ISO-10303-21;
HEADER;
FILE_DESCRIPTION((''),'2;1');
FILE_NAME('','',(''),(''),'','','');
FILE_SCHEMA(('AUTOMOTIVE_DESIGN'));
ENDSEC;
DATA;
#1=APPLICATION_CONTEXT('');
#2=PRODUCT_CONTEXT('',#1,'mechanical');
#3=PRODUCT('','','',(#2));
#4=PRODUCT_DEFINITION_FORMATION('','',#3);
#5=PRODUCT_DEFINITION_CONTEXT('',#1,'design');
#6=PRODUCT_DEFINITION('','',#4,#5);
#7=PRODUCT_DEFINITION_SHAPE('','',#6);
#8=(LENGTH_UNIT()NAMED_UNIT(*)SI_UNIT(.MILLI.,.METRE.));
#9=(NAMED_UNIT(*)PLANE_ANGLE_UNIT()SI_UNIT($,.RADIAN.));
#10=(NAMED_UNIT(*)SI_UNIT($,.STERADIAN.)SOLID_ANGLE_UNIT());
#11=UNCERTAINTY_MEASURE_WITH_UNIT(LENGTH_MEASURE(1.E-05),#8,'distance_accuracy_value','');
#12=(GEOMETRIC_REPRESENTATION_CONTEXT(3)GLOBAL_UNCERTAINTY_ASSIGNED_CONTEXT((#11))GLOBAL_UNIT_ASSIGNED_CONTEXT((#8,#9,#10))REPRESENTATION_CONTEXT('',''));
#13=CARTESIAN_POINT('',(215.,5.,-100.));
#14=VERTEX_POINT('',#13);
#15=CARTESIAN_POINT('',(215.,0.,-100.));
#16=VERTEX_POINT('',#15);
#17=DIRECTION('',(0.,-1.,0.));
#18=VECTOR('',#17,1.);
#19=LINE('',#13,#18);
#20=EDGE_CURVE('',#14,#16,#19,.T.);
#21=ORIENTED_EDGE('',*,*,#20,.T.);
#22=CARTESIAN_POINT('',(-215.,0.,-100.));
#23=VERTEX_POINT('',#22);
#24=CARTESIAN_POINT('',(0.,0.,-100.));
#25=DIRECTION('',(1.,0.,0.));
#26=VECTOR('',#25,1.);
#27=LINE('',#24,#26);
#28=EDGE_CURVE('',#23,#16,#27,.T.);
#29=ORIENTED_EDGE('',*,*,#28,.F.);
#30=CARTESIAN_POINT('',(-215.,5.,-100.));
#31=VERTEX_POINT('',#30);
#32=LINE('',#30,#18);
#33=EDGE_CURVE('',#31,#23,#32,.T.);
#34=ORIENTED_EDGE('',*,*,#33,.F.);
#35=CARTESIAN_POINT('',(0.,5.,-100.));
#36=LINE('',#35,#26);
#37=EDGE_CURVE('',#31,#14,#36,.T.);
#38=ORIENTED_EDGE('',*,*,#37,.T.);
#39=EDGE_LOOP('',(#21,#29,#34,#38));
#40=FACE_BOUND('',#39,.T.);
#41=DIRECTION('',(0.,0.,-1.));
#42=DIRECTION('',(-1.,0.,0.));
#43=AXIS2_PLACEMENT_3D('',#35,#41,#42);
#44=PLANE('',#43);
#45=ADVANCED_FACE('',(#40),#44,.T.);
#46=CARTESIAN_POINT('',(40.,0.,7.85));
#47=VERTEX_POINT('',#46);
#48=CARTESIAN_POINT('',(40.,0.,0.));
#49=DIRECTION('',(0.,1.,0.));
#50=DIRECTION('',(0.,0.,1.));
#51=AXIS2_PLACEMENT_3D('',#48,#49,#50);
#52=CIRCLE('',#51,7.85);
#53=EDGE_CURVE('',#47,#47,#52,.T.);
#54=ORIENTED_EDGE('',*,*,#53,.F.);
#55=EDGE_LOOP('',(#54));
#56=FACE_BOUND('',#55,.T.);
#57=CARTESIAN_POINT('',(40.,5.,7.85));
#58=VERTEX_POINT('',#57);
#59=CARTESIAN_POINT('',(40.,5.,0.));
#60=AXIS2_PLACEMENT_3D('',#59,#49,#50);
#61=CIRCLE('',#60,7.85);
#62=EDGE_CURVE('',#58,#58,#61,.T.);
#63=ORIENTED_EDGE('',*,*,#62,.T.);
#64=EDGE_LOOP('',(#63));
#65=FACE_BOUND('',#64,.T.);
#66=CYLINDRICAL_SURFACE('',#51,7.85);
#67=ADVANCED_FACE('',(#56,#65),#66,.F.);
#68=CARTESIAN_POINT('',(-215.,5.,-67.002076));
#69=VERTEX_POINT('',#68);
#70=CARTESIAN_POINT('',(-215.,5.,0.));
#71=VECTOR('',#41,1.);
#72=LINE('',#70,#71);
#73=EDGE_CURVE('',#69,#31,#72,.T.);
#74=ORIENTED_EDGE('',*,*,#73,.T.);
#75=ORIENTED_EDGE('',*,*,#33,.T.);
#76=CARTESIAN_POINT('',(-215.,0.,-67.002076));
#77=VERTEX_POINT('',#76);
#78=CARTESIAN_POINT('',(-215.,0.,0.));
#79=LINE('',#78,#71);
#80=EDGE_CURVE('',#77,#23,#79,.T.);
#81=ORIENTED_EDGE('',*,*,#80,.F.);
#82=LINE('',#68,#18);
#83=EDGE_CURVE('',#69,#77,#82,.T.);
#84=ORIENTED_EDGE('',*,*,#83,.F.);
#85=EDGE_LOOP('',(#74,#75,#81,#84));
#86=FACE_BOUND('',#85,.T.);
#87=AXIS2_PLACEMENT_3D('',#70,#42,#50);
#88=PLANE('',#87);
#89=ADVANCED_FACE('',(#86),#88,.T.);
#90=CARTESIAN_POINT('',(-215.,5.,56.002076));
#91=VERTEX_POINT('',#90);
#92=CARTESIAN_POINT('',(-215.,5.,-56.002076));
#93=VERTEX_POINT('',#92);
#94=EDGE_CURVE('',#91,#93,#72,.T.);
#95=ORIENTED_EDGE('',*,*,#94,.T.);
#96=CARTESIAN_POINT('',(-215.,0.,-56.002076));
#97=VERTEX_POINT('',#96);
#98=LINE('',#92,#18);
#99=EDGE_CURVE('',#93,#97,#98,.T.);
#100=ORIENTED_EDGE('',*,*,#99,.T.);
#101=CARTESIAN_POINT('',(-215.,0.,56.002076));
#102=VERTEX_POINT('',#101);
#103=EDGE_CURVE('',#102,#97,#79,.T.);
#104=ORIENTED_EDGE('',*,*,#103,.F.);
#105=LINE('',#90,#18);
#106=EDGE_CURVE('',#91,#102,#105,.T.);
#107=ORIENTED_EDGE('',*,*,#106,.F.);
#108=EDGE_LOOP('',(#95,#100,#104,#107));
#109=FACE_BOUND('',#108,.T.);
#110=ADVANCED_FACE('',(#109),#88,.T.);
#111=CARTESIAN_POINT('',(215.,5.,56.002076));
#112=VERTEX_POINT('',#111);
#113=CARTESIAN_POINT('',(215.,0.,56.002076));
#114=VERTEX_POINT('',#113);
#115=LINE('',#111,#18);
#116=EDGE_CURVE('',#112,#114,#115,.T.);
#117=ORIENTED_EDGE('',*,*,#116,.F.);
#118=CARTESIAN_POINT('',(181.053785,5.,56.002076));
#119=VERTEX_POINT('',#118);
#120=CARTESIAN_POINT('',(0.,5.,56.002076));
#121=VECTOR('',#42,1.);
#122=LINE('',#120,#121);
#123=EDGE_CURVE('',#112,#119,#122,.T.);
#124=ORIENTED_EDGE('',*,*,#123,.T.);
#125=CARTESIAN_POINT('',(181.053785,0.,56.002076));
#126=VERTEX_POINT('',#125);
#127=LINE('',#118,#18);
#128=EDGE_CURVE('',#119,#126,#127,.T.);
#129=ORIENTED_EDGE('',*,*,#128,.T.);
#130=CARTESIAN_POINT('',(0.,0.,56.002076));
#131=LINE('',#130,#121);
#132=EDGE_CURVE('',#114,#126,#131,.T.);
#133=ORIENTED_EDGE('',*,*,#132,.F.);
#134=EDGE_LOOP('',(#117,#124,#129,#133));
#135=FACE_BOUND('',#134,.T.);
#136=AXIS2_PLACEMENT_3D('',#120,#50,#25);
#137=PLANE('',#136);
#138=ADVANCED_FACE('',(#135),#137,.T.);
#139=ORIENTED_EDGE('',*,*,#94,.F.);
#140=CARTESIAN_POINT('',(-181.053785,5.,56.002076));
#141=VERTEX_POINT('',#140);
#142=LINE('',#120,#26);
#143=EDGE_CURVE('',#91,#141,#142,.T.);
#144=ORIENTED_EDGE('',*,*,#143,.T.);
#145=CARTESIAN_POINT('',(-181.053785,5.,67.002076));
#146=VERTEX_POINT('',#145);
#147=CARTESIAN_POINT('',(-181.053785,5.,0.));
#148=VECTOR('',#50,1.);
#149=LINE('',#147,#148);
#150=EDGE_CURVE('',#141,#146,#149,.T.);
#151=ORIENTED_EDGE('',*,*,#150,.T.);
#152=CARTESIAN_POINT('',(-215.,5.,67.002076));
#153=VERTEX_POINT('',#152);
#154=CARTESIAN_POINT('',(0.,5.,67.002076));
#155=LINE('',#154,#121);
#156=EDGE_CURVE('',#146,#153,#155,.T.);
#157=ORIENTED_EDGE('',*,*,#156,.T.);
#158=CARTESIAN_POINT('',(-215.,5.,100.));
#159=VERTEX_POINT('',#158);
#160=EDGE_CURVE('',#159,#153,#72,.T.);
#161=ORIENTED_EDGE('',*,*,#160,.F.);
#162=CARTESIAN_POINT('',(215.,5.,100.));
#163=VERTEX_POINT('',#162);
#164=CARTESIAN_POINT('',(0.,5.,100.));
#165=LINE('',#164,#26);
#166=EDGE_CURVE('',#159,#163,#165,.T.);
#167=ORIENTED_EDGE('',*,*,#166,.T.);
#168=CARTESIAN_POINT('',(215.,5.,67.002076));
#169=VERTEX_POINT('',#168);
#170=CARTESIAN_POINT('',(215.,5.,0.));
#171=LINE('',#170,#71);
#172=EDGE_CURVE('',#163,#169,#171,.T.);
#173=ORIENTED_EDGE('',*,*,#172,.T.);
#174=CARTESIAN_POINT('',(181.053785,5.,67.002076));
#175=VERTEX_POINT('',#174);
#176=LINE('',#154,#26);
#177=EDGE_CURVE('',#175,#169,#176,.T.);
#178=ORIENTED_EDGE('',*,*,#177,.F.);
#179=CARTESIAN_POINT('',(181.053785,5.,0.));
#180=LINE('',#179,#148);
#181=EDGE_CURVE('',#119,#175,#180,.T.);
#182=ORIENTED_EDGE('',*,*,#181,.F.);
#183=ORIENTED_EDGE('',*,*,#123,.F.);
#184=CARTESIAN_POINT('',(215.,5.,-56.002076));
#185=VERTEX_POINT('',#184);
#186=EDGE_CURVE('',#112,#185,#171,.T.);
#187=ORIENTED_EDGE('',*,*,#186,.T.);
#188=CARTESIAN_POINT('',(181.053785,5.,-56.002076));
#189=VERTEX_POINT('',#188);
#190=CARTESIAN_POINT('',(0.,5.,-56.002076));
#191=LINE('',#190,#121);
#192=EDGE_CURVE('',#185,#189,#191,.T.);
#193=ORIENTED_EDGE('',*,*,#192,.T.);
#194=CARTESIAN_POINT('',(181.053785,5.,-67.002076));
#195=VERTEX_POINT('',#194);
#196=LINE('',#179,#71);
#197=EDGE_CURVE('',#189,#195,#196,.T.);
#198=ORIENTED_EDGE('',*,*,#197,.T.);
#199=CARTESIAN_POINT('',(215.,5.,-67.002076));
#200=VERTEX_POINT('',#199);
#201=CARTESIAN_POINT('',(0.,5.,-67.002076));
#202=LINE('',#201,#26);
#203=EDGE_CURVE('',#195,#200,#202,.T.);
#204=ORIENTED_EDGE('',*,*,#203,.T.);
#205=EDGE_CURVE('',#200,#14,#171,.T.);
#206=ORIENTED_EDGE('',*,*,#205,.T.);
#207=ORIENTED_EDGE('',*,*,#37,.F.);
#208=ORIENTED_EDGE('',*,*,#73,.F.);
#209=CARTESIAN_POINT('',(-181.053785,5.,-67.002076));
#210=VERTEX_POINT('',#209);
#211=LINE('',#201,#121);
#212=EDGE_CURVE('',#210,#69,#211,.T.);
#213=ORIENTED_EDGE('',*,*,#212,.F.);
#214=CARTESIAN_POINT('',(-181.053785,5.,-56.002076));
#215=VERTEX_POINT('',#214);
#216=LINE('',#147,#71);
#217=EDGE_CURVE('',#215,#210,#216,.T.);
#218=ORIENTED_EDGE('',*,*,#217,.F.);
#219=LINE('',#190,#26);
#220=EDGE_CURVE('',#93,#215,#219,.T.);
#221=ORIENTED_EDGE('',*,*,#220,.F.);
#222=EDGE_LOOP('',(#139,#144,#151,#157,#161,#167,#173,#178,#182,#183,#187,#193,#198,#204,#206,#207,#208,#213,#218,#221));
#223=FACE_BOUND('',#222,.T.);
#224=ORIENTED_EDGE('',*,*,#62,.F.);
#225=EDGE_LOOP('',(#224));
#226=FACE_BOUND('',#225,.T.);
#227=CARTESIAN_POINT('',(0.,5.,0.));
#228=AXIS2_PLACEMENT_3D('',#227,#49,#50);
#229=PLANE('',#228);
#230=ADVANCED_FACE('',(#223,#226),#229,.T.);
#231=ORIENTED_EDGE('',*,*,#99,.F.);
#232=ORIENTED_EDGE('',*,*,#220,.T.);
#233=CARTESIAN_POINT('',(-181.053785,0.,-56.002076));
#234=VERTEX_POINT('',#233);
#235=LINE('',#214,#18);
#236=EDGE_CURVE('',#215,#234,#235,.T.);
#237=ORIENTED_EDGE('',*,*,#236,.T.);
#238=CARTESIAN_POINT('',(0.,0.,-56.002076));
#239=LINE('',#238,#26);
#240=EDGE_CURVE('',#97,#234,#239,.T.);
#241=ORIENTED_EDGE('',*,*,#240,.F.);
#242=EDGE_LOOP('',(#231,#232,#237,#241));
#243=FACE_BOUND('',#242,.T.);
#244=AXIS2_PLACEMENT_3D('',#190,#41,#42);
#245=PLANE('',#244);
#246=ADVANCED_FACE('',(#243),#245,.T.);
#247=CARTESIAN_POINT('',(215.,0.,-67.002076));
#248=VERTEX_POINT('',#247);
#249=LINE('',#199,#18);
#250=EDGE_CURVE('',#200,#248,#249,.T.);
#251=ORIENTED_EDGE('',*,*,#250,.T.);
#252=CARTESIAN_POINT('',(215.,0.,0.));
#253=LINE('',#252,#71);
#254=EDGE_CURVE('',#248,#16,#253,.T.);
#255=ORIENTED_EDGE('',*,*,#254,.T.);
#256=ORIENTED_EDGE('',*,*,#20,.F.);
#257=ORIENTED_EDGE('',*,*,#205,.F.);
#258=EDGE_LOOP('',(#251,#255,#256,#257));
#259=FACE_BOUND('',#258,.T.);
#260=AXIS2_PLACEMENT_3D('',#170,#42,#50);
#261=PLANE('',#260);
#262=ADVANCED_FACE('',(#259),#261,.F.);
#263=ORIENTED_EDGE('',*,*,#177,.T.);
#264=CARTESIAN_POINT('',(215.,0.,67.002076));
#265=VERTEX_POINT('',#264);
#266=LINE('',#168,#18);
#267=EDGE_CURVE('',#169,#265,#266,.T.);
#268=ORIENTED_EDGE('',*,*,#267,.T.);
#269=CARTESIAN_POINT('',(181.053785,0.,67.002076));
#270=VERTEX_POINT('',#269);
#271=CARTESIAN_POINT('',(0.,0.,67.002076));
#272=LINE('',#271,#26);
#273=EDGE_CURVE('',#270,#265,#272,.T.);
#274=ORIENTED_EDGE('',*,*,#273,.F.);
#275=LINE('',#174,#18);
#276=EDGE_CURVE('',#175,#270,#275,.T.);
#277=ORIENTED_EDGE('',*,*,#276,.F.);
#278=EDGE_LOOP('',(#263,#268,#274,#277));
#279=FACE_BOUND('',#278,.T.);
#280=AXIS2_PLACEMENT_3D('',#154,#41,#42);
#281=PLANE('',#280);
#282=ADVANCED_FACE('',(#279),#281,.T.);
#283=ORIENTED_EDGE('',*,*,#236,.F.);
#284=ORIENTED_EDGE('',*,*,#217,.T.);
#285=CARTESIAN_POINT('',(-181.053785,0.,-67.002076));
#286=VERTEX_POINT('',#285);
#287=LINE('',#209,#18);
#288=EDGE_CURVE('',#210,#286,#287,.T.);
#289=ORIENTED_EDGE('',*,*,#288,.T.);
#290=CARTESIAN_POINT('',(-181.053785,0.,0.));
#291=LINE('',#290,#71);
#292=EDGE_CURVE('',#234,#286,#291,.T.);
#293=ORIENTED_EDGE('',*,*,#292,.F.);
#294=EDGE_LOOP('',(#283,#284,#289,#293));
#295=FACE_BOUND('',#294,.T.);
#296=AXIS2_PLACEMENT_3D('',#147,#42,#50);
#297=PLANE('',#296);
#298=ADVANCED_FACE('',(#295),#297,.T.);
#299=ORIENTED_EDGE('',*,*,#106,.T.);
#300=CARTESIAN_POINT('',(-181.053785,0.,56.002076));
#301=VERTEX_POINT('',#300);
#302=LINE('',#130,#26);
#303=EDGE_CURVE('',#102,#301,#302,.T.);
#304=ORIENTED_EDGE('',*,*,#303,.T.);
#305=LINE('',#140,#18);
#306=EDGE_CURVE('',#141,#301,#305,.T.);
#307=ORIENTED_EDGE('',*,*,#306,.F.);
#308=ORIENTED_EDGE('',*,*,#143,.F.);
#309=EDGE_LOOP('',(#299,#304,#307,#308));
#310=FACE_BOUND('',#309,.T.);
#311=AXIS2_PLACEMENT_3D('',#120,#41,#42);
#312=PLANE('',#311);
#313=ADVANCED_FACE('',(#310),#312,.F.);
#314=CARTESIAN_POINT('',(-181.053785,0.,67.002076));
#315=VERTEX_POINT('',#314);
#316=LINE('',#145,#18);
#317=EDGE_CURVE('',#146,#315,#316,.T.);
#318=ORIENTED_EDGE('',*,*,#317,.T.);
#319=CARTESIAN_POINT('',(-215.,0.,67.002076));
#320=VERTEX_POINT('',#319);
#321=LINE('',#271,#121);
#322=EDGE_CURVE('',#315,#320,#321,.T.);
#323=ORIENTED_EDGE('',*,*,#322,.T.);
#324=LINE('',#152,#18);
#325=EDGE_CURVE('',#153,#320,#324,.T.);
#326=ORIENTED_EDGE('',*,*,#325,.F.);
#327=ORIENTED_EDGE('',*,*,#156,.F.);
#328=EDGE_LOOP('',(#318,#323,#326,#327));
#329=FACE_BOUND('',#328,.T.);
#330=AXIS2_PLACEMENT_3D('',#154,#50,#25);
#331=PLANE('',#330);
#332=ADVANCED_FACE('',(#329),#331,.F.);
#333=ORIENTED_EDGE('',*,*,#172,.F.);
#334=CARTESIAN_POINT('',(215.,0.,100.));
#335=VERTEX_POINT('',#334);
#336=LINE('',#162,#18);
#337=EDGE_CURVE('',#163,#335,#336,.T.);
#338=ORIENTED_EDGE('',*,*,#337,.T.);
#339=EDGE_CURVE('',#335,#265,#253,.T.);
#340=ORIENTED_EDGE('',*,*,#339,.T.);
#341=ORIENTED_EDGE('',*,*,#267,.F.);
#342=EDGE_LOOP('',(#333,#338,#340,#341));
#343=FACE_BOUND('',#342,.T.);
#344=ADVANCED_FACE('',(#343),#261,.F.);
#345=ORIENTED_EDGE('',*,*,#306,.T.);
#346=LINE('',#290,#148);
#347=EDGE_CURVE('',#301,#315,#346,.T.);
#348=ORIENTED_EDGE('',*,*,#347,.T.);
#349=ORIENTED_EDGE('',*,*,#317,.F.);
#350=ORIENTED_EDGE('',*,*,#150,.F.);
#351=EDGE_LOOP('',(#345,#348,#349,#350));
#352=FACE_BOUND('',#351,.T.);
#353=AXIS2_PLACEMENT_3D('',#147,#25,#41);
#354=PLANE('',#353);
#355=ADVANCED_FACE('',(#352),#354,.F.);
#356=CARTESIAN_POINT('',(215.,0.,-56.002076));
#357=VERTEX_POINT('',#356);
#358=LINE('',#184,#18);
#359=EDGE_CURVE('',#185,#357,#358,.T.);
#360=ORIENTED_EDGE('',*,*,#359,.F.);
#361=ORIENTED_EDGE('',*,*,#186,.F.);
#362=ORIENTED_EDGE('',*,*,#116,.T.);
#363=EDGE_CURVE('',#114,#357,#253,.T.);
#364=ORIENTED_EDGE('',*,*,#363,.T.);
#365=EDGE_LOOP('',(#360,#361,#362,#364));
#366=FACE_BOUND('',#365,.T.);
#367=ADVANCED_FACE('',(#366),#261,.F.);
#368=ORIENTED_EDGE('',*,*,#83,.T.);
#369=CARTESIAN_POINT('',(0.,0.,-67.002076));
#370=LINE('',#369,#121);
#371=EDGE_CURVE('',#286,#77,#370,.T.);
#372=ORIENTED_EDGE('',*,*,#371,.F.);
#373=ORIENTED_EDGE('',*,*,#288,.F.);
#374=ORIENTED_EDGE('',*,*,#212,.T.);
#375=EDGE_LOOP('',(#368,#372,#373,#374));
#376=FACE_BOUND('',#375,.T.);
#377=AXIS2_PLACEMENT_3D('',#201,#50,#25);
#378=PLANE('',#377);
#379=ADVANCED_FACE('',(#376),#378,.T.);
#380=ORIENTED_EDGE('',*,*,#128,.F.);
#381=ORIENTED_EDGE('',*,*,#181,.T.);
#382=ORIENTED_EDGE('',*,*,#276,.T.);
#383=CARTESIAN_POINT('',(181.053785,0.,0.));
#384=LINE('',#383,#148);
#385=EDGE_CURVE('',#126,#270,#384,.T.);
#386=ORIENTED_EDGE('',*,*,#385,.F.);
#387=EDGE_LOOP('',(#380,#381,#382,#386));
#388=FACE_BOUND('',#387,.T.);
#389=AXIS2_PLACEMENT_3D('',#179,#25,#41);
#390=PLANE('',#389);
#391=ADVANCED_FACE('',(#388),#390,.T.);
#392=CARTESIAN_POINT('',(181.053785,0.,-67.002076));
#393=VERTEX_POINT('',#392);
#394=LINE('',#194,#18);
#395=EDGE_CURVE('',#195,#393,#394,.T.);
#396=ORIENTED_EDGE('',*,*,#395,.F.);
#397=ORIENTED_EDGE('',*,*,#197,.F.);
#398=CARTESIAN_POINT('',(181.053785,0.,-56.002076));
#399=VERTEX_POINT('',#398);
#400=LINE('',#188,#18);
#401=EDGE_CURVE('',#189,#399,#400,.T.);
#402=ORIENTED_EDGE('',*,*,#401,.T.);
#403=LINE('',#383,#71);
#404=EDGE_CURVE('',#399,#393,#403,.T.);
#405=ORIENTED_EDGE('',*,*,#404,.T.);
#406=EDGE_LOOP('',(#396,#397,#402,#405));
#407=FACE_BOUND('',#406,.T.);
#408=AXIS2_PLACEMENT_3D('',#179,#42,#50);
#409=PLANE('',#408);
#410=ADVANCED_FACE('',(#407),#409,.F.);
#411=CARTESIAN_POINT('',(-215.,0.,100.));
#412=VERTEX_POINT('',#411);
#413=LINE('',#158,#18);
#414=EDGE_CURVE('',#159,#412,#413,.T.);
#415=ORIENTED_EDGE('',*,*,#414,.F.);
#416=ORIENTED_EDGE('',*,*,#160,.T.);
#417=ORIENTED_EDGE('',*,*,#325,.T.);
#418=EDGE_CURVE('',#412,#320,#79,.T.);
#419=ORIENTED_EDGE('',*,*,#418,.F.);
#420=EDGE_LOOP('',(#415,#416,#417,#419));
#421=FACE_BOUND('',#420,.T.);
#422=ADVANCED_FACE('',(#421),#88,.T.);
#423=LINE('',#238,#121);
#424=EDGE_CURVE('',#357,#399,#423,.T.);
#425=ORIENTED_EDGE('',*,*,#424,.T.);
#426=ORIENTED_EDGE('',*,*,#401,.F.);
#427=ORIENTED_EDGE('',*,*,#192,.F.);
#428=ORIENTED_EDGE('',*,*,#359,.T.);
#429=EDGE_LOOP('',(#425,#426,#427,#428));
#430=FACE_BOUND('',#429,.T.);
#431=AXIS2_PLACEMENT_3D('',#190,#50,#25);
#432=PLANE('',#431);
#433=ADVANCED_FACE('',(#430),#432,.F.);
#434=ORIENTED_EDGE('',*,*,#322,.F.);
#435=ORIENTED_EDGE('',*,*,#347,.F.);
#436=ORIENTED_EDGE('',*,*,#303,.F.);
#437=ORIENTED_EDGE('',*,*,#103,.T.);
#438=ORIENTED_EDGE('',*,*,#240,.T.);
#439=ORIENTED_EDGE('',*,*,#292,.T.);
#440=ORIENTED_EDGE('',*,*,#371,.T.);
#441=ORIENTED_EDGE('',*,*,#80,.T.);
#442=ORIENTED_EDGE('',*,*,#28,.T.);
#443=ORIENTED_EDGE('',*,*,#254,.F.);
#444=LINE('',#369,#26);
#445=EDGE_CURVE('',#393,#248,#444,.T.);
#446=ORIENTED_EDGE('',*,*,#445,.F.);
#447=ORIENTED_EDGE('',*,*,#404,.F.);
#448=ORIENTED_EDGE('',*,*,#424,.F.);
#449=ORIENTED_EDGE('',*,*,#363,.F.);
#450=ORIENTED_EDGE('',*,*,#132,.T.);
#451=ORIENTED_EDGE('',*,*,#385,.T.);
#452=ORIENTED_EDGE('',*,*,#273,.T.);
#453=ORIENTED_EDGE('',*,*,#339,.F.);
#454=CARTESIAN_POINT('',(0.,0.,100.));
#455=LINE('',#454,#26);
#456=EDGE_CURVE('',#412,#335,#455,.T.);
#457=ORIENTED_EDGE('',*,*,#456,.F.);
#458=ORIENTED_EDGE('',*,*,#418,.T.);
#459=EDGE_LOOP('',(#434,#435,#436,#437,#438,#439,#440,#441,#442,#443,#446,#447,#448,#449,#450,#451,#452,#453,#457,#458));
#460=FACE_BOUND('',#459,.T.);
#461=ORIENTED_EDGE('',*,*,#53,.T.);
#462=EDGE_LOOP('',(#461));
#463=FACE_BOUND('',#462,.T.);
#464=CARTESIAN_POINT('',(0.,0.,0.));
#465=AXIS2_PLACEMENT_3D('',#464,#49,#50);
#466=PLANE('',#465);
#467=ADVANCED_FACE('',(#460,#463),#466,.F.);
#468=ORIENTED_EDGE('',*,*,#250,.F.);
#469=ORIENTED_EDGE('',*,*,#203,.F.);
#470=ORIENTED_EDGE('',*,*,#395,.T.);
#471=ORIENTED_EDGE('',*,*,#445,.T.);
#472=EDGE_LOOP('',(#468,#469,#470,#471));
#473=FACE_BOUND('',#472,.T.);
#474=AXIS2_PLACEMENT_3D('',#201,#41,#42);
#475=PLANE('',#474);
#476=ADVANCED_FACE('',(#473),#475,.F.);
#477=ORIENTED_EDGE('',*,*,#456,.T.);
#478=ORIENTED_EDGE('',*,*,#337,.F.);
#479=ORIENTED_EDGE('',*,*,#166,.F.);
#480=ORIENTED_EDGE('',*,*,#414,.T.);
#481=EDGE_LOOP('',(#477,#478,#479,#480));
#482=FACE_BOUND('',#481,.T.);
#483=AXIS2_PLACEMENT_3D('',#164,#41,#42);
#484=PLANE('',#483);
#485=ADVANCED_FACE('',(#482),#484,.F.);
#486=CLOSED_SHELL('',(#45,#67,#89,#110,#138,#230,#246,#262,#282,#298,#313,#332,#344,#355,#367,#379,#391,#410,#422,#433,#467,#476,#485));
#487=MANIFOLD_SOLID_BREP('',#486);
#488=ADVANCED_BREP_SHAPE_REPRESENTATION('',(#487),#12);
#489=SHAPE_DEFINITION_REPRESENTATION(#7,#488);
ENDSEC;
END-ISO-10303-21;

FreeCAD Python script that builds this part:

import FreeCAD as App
import Part
import Sketcher
Q = App.Units.Quantity


def add_polygon(sketch, points):
    """Adds a closed chain of lines whose ends are joined by coincident constraints."""
    first, n = sketch.GeometryCount, len(points)
    for a, b in zip(points, points[1:] + points[:1]):
        sketch.addGeometry(Part.LineSegment(App.Vector(*a, 0), App.Vector(*b, 0)), False)
    for i in range(n):
        sketch.addConstraint(Sketcher.Constraint("Coincident", first + i, 2, first + (i + 1) % n, 1))

doc = App.newDocument("Part")
params = doc.addObject("Spreadsheet::Sheet", "Params")
for row, (alias, value) in enumerate([
    ("sketch1_width", "430 mm"),
    ("sketch1_height", "11 mm"),
    ("pad1_length", "5 mm"),
    ("sketch2_diameter", "15.7 mm"),
], start=1):
    params.set(f"A{row}", alias)
    params.set(f"B{row}", "=" + value)
    params.setAlias(f"B{row}", alias)

body = doc.addObject("PartDesign::Body", "Body")

# Sketch on XZ plane
sketch1 = body.newObject("Sketcher::SketchObject", "Sketch")
sketch1.AttachmentSupport = (doc.getObject("XZ_Plane"), [""])
sketch1.MapMode = "FlatFace"
add_polygon(sketch1, [(-215, 67), (-215, 100), (215, 100), (215, 67), (181, 67), (181, 56), (215, 56), (215, -56), (181, -56), (181, -67), (215, -67), (215, -100), (-215, -100), (-215, -67), (-181, -67), (-181, -56), (-215, -56), (-215, 56), (-181, 56), (-181, 67)])  # lines 0-19
sketch1.addConstraint([
    Sketcher.Constraint("Vertical", 0),
    Sketcher.Constraint("Horizontal", 1),
    Sketcher.Constraint("Vertical", 2),
    Sketcher.Constraint("Horizontal", 3),
    Sketcher.Constraint("Vertical", 4),
    Sketcher.Constraint("Horizontal", 5),
    Sketcher.Constraint("Vertical", 6),
    Sketcher.Constraint("Horizontal", 7),
    Sketcher.Constraint("Vertical", 8),
    Sketcher.Constraint("Horizontal", 9),
    Sketcher.Constraint("Vertical", 10),
    Sketcher.Constraint("Horizontal", 11),
    Sketcher.Constraint("Vertical", 12),
    Sketcher.Constraint("Horizontal", 13),
    Sketcher.Constraint("Vertical", 14),
    Sketcher.Constraint("Horizontal", 15),
    Sketcher.Constraint("Vertical", 16),
    Sketcher.Constraint("Horizontal", 17),
    Sketcher.Constraint("Vertical", 18),
    Sketcher.Constraint("Horizontal", 19),
    Sketcher.Constraint("Symmetric", 0, 2, 10, 2, -1, 1),
    Sketcher.Constraint("Symmetric", 2, 2, 12, 2, -1, 1),
    Sketcher.Constraint("Symmetric", 4, 2, 14, 2, -1, 1),
    Sketcher.Constraint("Symmetric", 6, 2, 16, 2, -1, 1),
    Sketcher.Constraint("Symmetric", 8, 2, 18, 2, -1, 1),
    Sketcher.Constraint("Symmetric", 9, 2, 12, 2, -2),
    Sketcher.Constraint("Symmetric", 7, 2, 14, 2, -2),
    Sketcher.Constraint("Vertical", 2, 2, 5, 2),
    Sketcher.Constraint("DistanceX", 1, 1, 1, 2, Q("430 mm")),
    Sketcher.Constraint("DistanceY", 4, 2, 4, 1, Q("11 mm")),
    Sketcher.Constraint("DistanceY", -1, 1, 0, 2, Q("100 mm")),
    Sketcher.Constraint("DistanceY", 6, 2, 6, 1, Q("112.004151 mm")),
    Sketcher.Constraint("DistanceX", 3, 2, 3, 1, Q("33.946215 mm")),
])
sketch1.setExpression("Constraints[48]", "Params.sketch1_width")
sketch1.setExpression("Constraints[49]", "Params.sketch1_height")
pad1 = body.newObject("PartDesign::Pad", "Pad")
pad1.Profile = sketch1
pad1.setExpression("Length", "Params.pad1_length")
pad1.Reversed = True

# Sketch on XZ plane
sketch2 = body.newObject("Sketcher::SketchObject", "Sketch001")
sketch2.AttachmentSupport = (doc.getObject("XZ_Plane"), [""])
sketch2.MapMode = "FlatFace"
sketch2.AttachmentOffset = App.Placement(App.Vector(0, 0, -5), App.Rotation())
sketch2.addGeometry(Part.Circle(App.Vector(40, 0, 0), App.Vector(0, 0, 1), 8), False)
sketch2.addConstraint([
    Sketcher.Constraint("PointOnObject", 0, 3, -1),
    Sketcher.Constraint("Diameter", 0, Q("15.7 mm")),
    Sketcher.Constraint("DistanceX", -1, 1, 0, 3, Q("40 mm")),
])
sketch2.setExpression("Constraints[1]", "Params.sketch2_diameter")
pocket1 = body.newObject("PartDesign::Pocket", "Pocket")
pocket1.Profile = sketch2
pocket1.Type = "ThroughAll"
pocket1.Reversed = True

doc.recompute()
